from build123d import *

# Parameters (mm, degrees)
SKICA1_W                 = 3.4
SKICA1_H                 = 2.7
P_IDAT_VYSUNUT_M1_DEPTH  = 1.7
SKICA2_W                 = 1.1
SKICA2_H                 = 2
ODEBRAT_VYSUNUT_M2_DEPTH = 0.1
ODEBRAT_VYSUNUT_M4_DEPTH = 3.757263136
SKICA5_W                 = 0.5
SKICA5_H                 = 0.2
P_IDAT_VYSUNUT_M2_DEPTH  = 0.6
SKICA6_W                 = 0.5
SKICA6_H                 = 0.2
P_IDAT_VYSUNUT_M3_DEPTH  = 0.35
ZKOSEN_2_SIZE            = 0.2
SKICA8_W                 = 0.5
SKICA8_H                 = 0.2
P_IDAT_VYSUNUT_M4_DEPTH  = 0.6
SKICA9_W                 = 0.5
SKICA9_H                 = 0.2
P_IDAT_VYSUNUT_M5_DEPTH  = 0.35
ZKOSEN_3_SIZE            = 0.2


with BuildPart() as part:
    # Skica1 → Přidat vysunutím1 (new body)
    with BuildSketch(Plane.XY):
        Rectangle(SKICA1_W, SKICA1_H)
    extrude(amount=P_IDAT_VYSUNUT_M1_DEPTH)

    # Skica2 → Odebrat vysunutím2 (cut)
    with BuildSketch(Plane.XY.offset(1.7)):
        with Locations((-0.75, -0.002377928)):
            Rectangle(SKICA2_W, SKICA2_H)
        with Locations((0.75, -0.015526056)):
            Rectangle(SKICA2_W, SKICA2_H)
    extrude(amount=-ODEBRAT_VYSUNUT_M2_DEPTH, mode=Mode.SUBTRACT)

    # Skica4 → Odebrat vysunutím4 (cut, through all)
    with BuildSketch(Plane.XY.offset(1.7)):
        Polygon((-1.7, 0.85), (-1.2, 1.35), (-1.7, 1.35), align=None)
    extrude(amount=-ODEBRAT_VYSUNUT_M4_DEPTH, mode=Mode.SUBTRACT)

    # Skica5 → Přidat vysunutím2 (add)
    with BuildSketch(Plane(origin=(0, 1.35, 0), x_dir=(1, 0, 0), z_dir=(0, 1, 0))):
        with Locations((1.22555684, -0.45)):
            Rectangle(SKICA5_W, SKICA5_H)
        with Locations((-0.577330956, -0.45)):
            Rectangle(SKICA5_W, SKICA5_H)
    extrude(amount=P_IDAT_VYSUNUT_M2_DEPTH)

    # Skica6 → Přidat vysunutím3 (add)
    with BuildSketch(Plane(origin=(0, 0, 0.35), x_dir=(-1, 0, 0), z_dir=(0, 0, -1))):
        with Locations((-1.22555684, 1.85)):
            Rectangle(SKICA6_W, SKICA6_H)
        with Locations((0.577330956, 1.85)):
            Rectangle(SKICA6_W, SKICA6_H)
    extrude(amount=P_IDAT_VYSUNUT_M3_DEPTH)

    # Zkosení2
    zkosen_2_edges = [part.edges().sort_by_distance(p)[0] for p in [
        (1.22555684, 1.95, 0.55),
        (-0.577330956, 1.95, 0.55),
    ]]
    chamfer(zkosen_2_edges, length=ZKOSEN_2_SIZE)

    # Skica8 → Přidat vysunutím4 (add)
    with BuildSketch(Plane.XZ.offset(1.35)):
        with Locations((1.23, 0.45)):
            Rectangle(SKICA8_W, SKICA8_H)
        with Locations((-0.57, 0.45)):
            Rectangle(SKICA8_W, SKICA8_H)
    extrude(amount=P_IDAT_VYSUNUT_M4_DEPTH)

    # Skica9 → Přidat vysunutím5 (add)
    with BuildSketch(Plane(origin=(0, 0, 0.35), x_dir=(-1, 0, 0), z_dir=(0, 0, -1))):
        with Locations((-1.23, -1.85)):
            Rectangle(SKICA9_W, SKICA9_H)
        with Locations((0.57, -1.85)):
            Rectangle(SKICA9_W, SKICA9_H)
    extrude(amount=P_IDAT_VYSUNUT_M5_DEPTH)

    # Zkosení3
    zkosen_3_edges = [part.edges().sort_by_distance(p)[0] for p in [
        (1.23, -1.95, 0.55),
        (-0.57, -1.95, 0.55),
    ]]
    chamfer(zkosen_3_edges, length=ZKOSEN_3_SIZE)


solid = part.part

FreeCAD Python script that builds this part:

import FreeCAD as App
import Part
import Sketcher

V = App.Vector
Q = App.Units.Quantity


def edges_at(feature, points):
    """Names of the edges that pass closest to the given points."""
    edges = feature.Shape.Edges
    near = lambda p: min(range(len(edges)), key=lambda i: edges[i].distToShape(Part.Vertex(*p))[0])
    return sorted({f"Edge{near(p) + 1}" for p in points})

doc = App.newDocument("Part")
params = doc.addObject("Spreadsheet::Sheet", "Params")
for row, (alias, value) in enumerate([
    ("sketch1_width", "3.4 mm"),
    ("sketch1_height", "2.7 mm"),
    ("pad1_length", "1.7 mm"),
    ("sketch2_height", "2 mm"),
    ("sketch2_width", "1.1 mm"),
    ("pocket1_length", "0.1 mm"),
    ("sketch3_width", "0.5 mm"),
    ("sketch4_width", "0.5 mm"),
    ("sketch4_height", "0.2 mm"),
    ("pad2_length", "0.6 mm"),
    ("sketch5_width", "0.5 mm"),
    ("sketch5_height", "0.2 mm"),
    ("pad3_length", "0.35 mm"),
    ("chamfer_size", "0.2 mm"),
    ("sketch6_width", "0.5 mm"),
    ("sketch6_height", "0.2 mm"),
    ("pad4_length", "0.6 mm"),
    ("sketch7_width", "0.5 mm"),
    ("sketch7_height", "0.2 mm"),
    ("pad5_length", "0.35 mm"),
    ("chamfer2_size", "0.2 mm"),
], start=1):
    params.set(f"A{row}", alias)
    params.set(f"B{row}", "=" + value)
    params.setAlias(f"B{row}", alias)

body = doc.addObject("PartDesign::Body", "Body")

# Sketch on XY plane
sketch1 = body.newObject("Sketcher::SketchObject", "Sketch")
sketch1.AttachmentSupport = (doc.getObject("XY_Plane"), [""])
sketch1.MapMode = "FlatFace"
sketch1.addGeometry([
    Part.LineSegment(V(-1.7, 1.4, 0), V(-1.7, -1.4, 0)),
    Part.LineSegment(V(-1.7, -1.4, 0), V(1.7, -1.4, 0)),
    Part.LineSegment(V(1.7, -1.4, 0), V(1.7, 1.4, 0)),
    Part.LineSegment(V(1.7, 1.4, 0), V(-1.7, 1.4, 0)),
], False)
sketch1.addConstraint([
    Sketcher.Constraint("Coincident", 0, 2, 1, 1),
    Sketcher.Constraint("Coincident", 1, 2, 2, 1),
    Sketcher.Constraint("Coincident", 2, 2, 3, 1),
    Sketcher.Constraint("Coincident", 3, 2, 0, 1),
    Sketcher.Constraint("Vertical", 0),
    Sketcher.Constraint("Horizontal", 1),
    Sketcher.Constraint("Vertical", 2),
    Sketcher.Constraint("Horizontal", 3),
    Sketcher.Constraint("Symmetric", 0, 2, 2, 2, -1, 1),
    Sketcher.Constraint("DistanceX", 1, 1, 1, 2, Q("3.4 mm")),
    Sketcher.Constraint("DistanceY", 0, 2, 0, 1, Q("2.7 mm")),
])
sketch1.setExpression("Constraints[9]", "Params.sketch1_width")
sketch1.setExpression("Constraints[10]", "Params.sketch1_height")
pad1 = body.newObject("PartDesign::Pad", "Pad")
pad1.Profile = sketch1
pad1.setExpression("Length", "Params.pad1_length")

# Sketch on XY plane
sketch2 = body.newObject("Sketcher::SketchObject", "Sketch001")
sketch2.AttachmentSupport = (doc.getObject("XY_Plane"), [""])
sketch2.MapMode = "FlatFace"
sketch2.AttachmentOffset = App.Placement(V(0, 0, 1.7), App.Rotation())
sketch2.addGeometry([
    Part.LineSegment(V(-1.3, 1, 0), V(-1.3, -1, 0)),  # 0
    Part.LineSegment(V(-1.3, -1, 0), V(-0.2, -1, 0)),  # 1
    Part.LineSegment(V(-0.2, -1, 0), V(-0.2, 1, 0)),  # 2
    Part.LineSegment(V(-0.2, 1, 0), V(-1.3, 1, 0)),  # 3
    Part.LineSegment(V(0.2, 1, 0), V(0.2, -1, 0)),  # 4
    Part.LineSegment(V(0.2, -1, 0), V(1.3, -1, 0)),  # 5
    Part.LineSegment(V(1.3, -1, 0), V(1.3, 1, 0)),  # 6
    Part.LineSegment(V(1.3, 1, 0), V(0.2, 1, 0)),  # 7
], False)
sketch2.addConstraint([
    Sketcher.Constraint("Coincident", 0, 2, 1, 1),
    Sketcher.Constraint("Coincident", 1, 2, 2, 1),
    Sketcher.Constraint("Coincident", 2, 2, 3, 1),
    Sketcher.Constraint("Coincident", 3, 2, 0, 1),
    Sketcher.Constraint("Coincident", 4, 2, 5, 1),
    Sketcher.Constraint("Coincident", 5, 2, 6, 1),
    Sketcher.Constraint("Coincident", 6, 2, 7, 1),
    Sketcher.Constraint("Coincident", 7, 2, 4, 1),
    Sketcher.Constraint("Vertical", 0),
    Sketcher.Constraint("Horizontal", 1),
    Sketcher.Constraint("Vertical", 2),
    Sketcher.Constraint("Horizontal", 3),
    Sketcher.Constraint("Vertical", 4),
    Sketcher.Constraint("Horizontal", 5),
    Sketcher.Constraint("Vertical", 6),
    Sketcher.Constraint("Horizontal", 7),
    Sketcher.Constraint("Equal", 3, 5),
    Sketcher.Constraint("Equal", 2, 4),
    Sketcher.Constraint("DistanceY", 0, 2, 0, 1, Q("2 mm")),
    Sketcher.Constraint("DistanceX", 1, 1, 1, 2, Q("1.1 mm")),
    Sketcher.Constraint("DistanceX", 0, 2, -1, 1, Q("1.3 mm")),
    Sketcher.Constraint("DistanceX", -1, 1, 4, 2, Q("0.2 mm")),
    Sketcher.Constraint("DistanceY", 4, 2, 1, 2, Q("0.013148 mm")),
    Sketcher.Constraint("DistanceY", 0, 2, -1, 1, Q("1.002378 mm")),
])
sketch2.setExpression("Constraints[18]", "Params.sketch2_height")
sketch2.setExpression("Constraints[19]", "Params.sketch2_width")
pocket1 = body.newObject("PartDesign::Pocket", "Pocket")
pocket1.Profile = sketch2
pocket1.setExpression("Length", "Params.pocket1_length")

# Sketch on XY plane
sketch3 = body.newObject("Sketcher::SketchObject", "Sketch002")
sketch3.AttachmentSupport = (doc.getObject("XY_Plane"), [""])
sketch3.MapMode = "FlatFace"
sketch3.AttachmentOffset = App.Placement(V(0, 0, 1.7), App.Rotation())
sketch3.addGeometry([
    Part.LineSegment(V(-1.7, 0.8, 0), V(-1.2, 1.4, 0)),
    Part.LineSegment(V(-1.2, 1.4, 0), V(-1.7, 1.4, 0)),
    Part.LineSegment(V(-1.7, 1.4, 0), V(-1.7, 0.8, 0)),
], False)
sketch3.addConstraint([
    Sketcher.Constraint("Coincident", 0, 2, 1, 1),
    Sketcher.Constraint("Coincident", 1, 2, 2, 1),
    Sketcher.Constraint("Coincident", 2, 2, 0, 1),
    Sketcher.Constraint("Horizontal", 1),
    Sketcher.Constraint("Vertical", 2),
    Sketcher.Constraint("Equal", 1, 2),
    Sketcher.Constraint("DistanceX", 1, 2, 1, 1, Q("0.5 mm")),
    Sketcher.Constraint("DistanceX", 0, 2, -1, 1, Q("1.2 mm")),
    Sketcher.Constraint("DistanceY", -1, 1, 0, 2, Q("1.35 mm")),
])
sketch3.setExpression("Constraints[6]", "Params.sketch3_width")
pocket2 = body.newObject("PartDesign::Pocket", "Pocket001")
pocket2.Profile = sketch3
pocket2.Type = "ThroughAll"

# Sketch on XZ plane
sketch4 = body.newObject("Sketcher::SketchObject", "Sketch003")
sketch4.AttachmentSupport = (doc.getObject("XZ_Plane"), [""])
sketch4.MapMode = "FlatFace"
sketch4.AttachmentOffset = App.Placement(V(0, 0, -1.35), App.Rotation())
sketch4.addGeometry([
    Part.LineSegment(V(0.98, 0.35, 0), V(0.98, 0.55, 0)),  # 0
    Part.LineSegment(V(0.98, 0.55, 0), V(1.48, 0.55, 0)),  # 1
    Part.LineSegment(V(1.48, 0.55, 0), V(1.48, 0.35, 0)),  # 2
    Part.LineSegment(V(1.48, 0.35, 0), V(0.98, 0.35, 0)),  # 3
    Part.LineSegment(V(-0.83, 0.35, 0), V(-0.83, 0.55, 0)),  # 4
    Part.LineSegment(V(-0.83, 0.55, 0), V(-0.33, 0.55, 0)),  # 5
    Part.LineSegment(V(-0.33, 0.55, 0), V(-0.33, 0.35, 0)),  # 6
    Part.LineSegment(V(-0.33, 0.35, 0), V(-0.83, 0.35, 0)),  # 7
], False)
sketch4.addConstraint([
    Sketcher.Constraint("Coincident", 0, 2, 1, 1),
    Sketcher.Constraint("Coincident", 1, 2, 2, 1),
    Sketcher.Constraint("Coincident", 2, 2, 3, 1),
    Sketcher.Constraint("Coincident", 3, 2, 0, 1),
    Sketcher.Constraint("Coincident", 4, 2, 5, 1),
    Sketcher.Constraint("Coincident", 5, 2, 6, 1),
    Sketcher.Constraint("Coincident", 6, 2, 7, 1),
    Sketcher.Constraint("Coincident", 7, 2, 4, 1),
    Sketcher.Constraint("Vertical", 0),
    Sketcher.Constraint("Horizontal", 1),
    Sketcher.Constraint("Vertical", 2),
    Sketcher.Constraint("Horizontal", 3),
    Sketcher.Constraint("Vertical", 4),
    Sketcher.Constraint("Horizontal", 5),
    Sketcher.Constraint("Vertical", 6),
    Sketcher.Constraint("Horizontal", 7),
    Sketcher.Constraint("Horizontal", 1, 2, 4, 2),
    Sketcher.Constraint("Horizontal", 3, 2, 6, 2),
    Sketcher.Constraint("Equal", 3, 5),
    Sketcher.Constraint("DistanceX", 1, 1, 1, 2, Q("0.5 mm")),
    Sketcher.Constraint("DistanceY", 0, 1, 0, 2, Q("0.2 mm")),
    Sketcher.Constraint("DistanceY", -1, 1, 0, 2, Q("0.55 mm")),
    Sketcher.Constraint("DistanceX", 4, 2, -1, 1, Q("0.827331 mm")),
    Sketcher.Constraint("DistanceX", -1, 1, 0, 2, Q("0.975557 mm")),
])
sketch4.setExpression("Constraints[19]", "Params.sketch4_width")
sketch4.setExpression("Constraints[20]", "Params.sketch4_height")
pad2 = body.newObject("PartDesign::Pad", "Pad001")
pad2.Profile = sketch4
pad2.setExpression("Length", "Params.pad2_length")
pad2.Reversed = True

# Sketch on XY plane
sketch5 = body.newObject("Sketcher::SketchObject", "Sketch004")
sketch5.AttachmentSupport = (doc.getObject("XY_Plane"), [""])
sketch5.MapMode = "FlatFace"
sketch5.AttachmentOffset = App.Placement(V(0, 0, 0.35), App.Rotation())
sketch5.addGeometry([
    Part.LineSegment(V(1.48, 1.95, 0), V(1.48, 1.75, 0)),  # 0
    Part.LineSegment(V(1.48, 1.75, 0), V(0.98, 1.75, 0)),  # 1
    Part.LineSegment(V(0.98, 1.75, 0), V(0.98, 1.95, 0)),  # 2
    Part.LineSegment(V(0.98, 1.95, 0), V(1.48, 1.95, 0)),  # 3
    Part.LineSegment(V(-0.33, 1.95, 0), V(-0.33, 1.75, 0)),  # 4
    Part.LineSegment(V(-0.33, 1.75, 0), V(-0.83, 1.75, 0)),  # 5
    Part.LineSegment(V(-0.83, 1.75, 0), V(-0.83, 1.95, 0)),  # 6
    Part.LineSegment(V(-0.83, 1.95, 0), V(-0.33, 1.95, 0)),  # 7
], False)
sketch5.addConstraint([
    Sketcher.Constraint("Coincident", 0, 2, 1, 1),
    Sketcher.Constraint("Coincident", 1, 2, 2, 1),
    Sketcher.Constraint("Coincident", 2, 2, 3, 1),
    Sketcher.Constraint("Coincident", 3, 2, 0, 1),
    Sketcher.Constraint("Coincident", 4, 2, 5, 1),
    Sketcher.Constraint("Coincident", 5, 2, 6, 1),
    Sketcher.Constraint("Coincident", 6, 2, 7, 1),
    Sketcher.Constraint("Coincident", 7, 2, 4, 1),
    Sketcher.Constraint("Vertical", 0),
    Sketcher.Constraint("Horizontal", 1),
    Sketcher.Constraint("Vertical", 2),
    Sketcher.Constraint("Horizontal", 3),
    Sketcher.Constraint("Vertical", 4),
    Sketcher.Constraint("Horizontal", 5),
    Sketcher.Constraint("Vertical", 6),
    Sketcher.Constraint("Horizontal", 7),
    Sketcher.Constraint("Horizontal", 1, 2, 4, 2),
    Sketcher.Constraint("Horizontal", 3, 2, 6, 2),
    Sketcher.Constraint("Equal", 3, 5),
    Sketcher.Constraint("DistanceX", 1, 2, 1, 1, Q("0.5 mm")),
    Sketcher.Constraint("DistanceY", 0, 2, 0, 1, Q("0.2 mm")),
    Sketcher.Constraint("DistanceY", -1, 1, 0, 2, Q("1.75 mm")),
    Sketcher.Constraint("DistanceX", 4, 2, -1, 1, Q("0.327331 mm")),
    Sketcher.Constraint("DistanceX", -1, 1, 0, 2, Q("1.475557 mm")),
])
sketch5.setExpression("Constraints[19]", "Params.sketch5_width")
sketch5.setExpression("Constraints[20]", "Params.sketch5_height")
pad3 = body.newObject("PartDesign::Pad", "Pad002")
pad3.Profile = sketch5
pad3.setExpression("Length", "Params.pad3_length")
pad3.Reversed = True
doc.recompute()

chamfer = body.newObject("PartDesign::Chamfer", "Chamfer")
chamfer.Base = (pad3, edges_at(pad3, [(1.226, 1.95, 0.55), (-0.577, 1.95, 0.55)]))
chamfer.setExpression("Size", "Params.chamfer_size")

# Sketch on XZ plane
sketch6 = body.newObject("Sketcher::SketchObject", "Sketch005")
sketch6.AttachmentSupport = (doc.getObject("XZ_Plane"), [""])
sketch6.MapMode = "FlatFace"
sketch6.AttachmentOffset = App.Placement(V(0, 0, 1.35), App.Rotation())
sketch6.addGeometry([
    Part.LineSegment(V(0.98, 0.55, 0), V(0.98, 0.35, 0)),  # 0
    Part.LineSegment(V(0.98, 0.35, 0), V(1.48, 0.35, 0)),  # 1
    Part.LineSegment(V(1.48, 0.35, 0), V(1.48, 0.55, 0)),  # 2
    Part.LineSegment(V(1.48, 0.55, 0), V(0.98, 0.55, 0)),  # 3
    Part.LineSegment(V(-0.82, 0.55, 0), V(-0.82, 0.35, 0)),  # 4
    Part.LineSegment(V(-0.82, 0.35, 0), V(-0.32, 0.35, 0)),  # 5
    Part.LineSegment(V(-0.32, 0.35, 0), V(-0.32, 0.55, 0)),  # 6
    Part.LineSegment(V(-0.32, 0.55, 0), V(-0.82, 0.55, 0)),  # 7
], False)
sketch6.addConstraint([
    Sketcher.Constraint("Coincident", 0, 2, 1, 1),
    Sketcher.Constraint("Coincident", 1, 2, 2, 1),
    Sketcher.Constraint("Coincident", 2, 2, 3, 1),
    Sketcher.Constraint("Coincident", 3, 2, 0, 1),
    Sketcher.Constraint("Coincident", 4, 2, 5, 1),
    Sketcher.Constraint("Coincident", 5, 2, 6, 1),
    Sketcher.Constraint("Coincident", 6, 2, 7, 1),
    Sketcher.Constraint("Coincident", 7, 2, 4, 1),
    Sketcher.Constraint("Vertical", 0),
    Sketcher.Constraint("Horizontal", 1),
    Sketcher.Constraint("Vertical", 2),
    Sketcher.Constraint("Horizontal", 3),
    Sketcher.Constraint("Vertical", 4),
    Sketcher.Constraint("Horizontal", 5),
    Sketcher.Constraint("Vertical", 6),
    Sketcher.Constraint("Horizontal", 7),
    Sketcher.Constraint("Horizontal", 1, 2, 4, 2),
    Sketcher.Constraint("Horizontal", 3, 2, 6, 2),
    Sketcher.Constraint("Equal", 3, 5),
    Sketcher.Constraint("DistanceX", 1, 1, 1, 2, Q("0.5 mm")),
    Sketcher.Constraint("DistanceY", 0, 2, 0, 1, Q("0.2 mm")),
    Sketcher.Constraint("DistanceX", 4, 2, 0, 2, Q("1.8 mm")),
    Sketcher.Constraint("DistanceX", -1, 1, 0, 2, Q("0.98 mm")),
    Sketcher.Constraint("DistanceY", -1, 1, 0, 2, Q("0.35 mm")),
])
sketch6.setExpression("Constraints[19]", "Params.sketch6_width")
sketch6.setExpression("Constraints[20]", "Params.sketch6_height")
pad4 = body.newObject("PartDesign::Pad", "Pad003")
pad4.Profile = sketch6
pad4.setExpression("Length", "Params.pad4_length")

# Sketch on XY plane
sketch7 = body.newObject("Sketcher::SketchObject", "Sketch006")
sketch7.AttachmentSupport = (doc.getObject("XY_Plane"), [""])
sketch7.MapMode = "FlatFace"
sketch7.AttachmentOffset = App.Placement(V(0, 0, 0.35), App.Rotation())
sketch7.addGeometry([
    Part.LineSegment(V(1.48, -1.75, 0), V(1.48, -1.95, 0)),  # 0
    Part.LineSegment(V(1.48, -1.95, 0), V(0.98, -1.95, 0)),  # 1
    Part.LineSegment(V(0.98, -1.95, 0), V(0.98, -1.75, 0)),  # 2
    Part.LineSegment(V(0.98, -1.75, 0), V(1.48, -1.75, 0)),  # 3
    Part.LineSegment(V(-0.32, -1.75, 0), V(-0.32, -1.95, 0)),  # 4
    Part.LineSegment(V(-0.32, -1.95, 0), V(-0.82, -1.95, 0)),  # 5
    Part.LineSegment(V(-0.82, -1.95, 0), V(-0.82, -1.75, 0)),  # 6
    Part.LineSegment(V(-0.82, -1.75, 0), V(-0.32, -1.75, 0)),  # 7
], False)
sketch7.addConstraint([
    Sketcher.Constraint("Coincident", 0, 2, 1, 1),
    Sketcher.Constraint("Coincident", 1, 2, 2, 1),
    Sketcher.Constraint("Coincident", 2, 2, 3, 1),
    Sketcher.Constraint("Coincident", 3, 2, 0, 1),
    Sketcher.Constraint("Coincident", 4, 2, 5, 1),
    Sketcher.Constraint("Coincident", 5, 2, 6, 1),
    Sketcher.Constraint("Coincident", 6, 2, 7, 1),
    Sketcher.Constraint("Coincident", 7, 2, 4, 1),
    Sketcher.Constraint("Vertical", 0),
    Sketcher.Constraint("Horizontal", 1),
    Sketcher.Constraint("Vertical", 2),
    Sketcher.Constraint("Horizontal", 3),
    Sketcher.Constraint("Vertical", 4),
    Sketcher.Constraint("Horizontal", 5),
    Sketcher.Constraint("Vertical", 6),
    Sketcher.Constraint("Horizontal", 7),
    Sketcher.Constraint("Horizontal", 1, 2, 4, 2),
    Sketcher.Constraint("Horizontal", 3, 2, 6, 2),
    Sketcher.Constraint("Equal", 3, 5),
    Sketcher.Constraint("DistanceX", 1, 2, 1, 1, Q("0.5 mm")),
    Sketcher.Constraint("DistanceY", 0, 2, 0, 1, Q("0.2 mm")),
    Sketcher.Constraint("DistanceX", 4, 2, 1, 2, Q("1.3 mm")),
    Sketcher.Constraint("DistanceX", -1, 1, 0, 2, Q("1.48 mm")),
    Sketcher.Constraint("DistanceY", 0, 2, -1, 1, Q("1.95 mm")),
])
sketch7.setExpression("Constraints[19]", "Params.sketch7_width")
sketch7.setExpression("Constraints[20]", "Params.sketch7_height")
pad5 = body.newObject("PartDesign::Pad", "Pad004")
pad5.Profile = sketch7
pad5.setExpression("Length", "Params.pad5_length")
pad5.Reversed = True
doc.recompute()

chamfer2 = body.newObject("PartDesign::Chamfer", "Chamfer001")
chamfer2.Base = (pad5, edges_at(pad5, [(1.23, -1.95, 0.55), (-0.57, -1.95, 0.55)]))
chamfer2.setExpression("Size", "Params.chamfer2_size")

doc.recompute()
